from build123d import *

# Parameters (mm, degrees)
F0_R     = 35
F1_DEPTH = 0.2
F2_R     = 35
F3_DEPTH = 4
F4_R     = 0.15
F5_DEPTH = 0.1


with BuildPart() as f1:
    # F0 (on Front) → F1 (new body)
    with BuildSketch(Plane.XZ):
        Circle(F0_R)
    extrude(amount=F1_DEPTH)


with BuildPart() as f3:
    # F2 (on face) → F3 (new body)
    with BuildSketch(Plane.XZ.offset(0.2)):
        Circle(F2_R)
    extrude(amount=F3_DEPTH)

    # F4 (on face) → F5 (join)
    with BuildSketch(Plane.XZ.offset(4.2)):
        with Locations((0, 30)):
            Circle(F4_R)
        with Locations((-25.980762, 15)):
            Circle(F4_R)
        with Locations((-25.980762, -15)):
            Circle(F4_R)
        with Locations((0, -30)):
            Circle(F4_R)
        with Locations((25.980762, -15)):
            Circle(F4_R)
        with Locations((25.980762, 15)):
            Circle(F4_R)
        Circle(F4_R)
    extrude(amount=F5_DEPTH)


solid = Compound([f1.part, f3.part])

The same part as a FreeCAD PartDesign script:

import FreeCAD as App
import Part
import Sketcher
from FreeCAD import Vector
Q = App.Units.Quantity

doc = App.newDocument("Part")
params = doc.addObject("Spreadsheet::Sheet", "Params")
for row, (alias, value) in enumerate([
    ("sketch1_diameter", "70 mm"),
    ("pad1_length", "0.2 mm"),
    ("sketch2_diameter", "70 mm"),
    ("pad2_length", "4 mm"),
    ("sketch3_diameter", "0.3 mm"),
    ("pad3_length", "0.1 mm"),
], start=1):
    params.set(f"A{row}", alias)
    params.set(f"B{row}", "=" + value)
    params.setAlias(f"B{row}", alias)

body = doc.addObject("PartDesign::Body", "Body")

sketch1 = doc.addObject("Sketcher::SketchObject", "Sketch")
body.addObject(sketch1)
sketch1.AttachmentSupport = (doc.XZ_Plane, [""])
sketch1.MapMode = "FlatFace"
sketch1.addGeometry(Part.Circle(Vector(0, 0, 0), Vector(0, 0, 1), 35), False)
sketch1.addConstraint(Sketcher.Constraint("Coincident", 0, 3, -1, 1))
sketch1.addConstraint(Sketcher.Constraint("Diameter", 0, Q("70 mm")))
sketch1.setExpression("Constraints[1]", "Params.sketch1_diameter")
pad1 = doc.addObject("PartDesign::Pad", "Pad")
body.addObject(pad1)
pad1.Profile = sketch1
pad1.setExpression("Length", "Params.pad1_length")
body2 = doc.addObject("PartDesign::Body", "Body001")

sketch2 = doc.addObject("Sketcher::SketchObject", "Sketch001")
body2.addObject(sketch2)
sketch2.AttachmentSupport = (doc.getObject("XZ_Plane001"), [""])
sketch2.MapMode = "FlatFace"
sketch2.AttachmentOffset = App.Placement(Vector(0, 0, 0.2), App.Rotation())
sketch2.addGeometry(Part.Circle(Vector(0, 0, 0), Vector(0, 0, 1), 35), False)
sketch2.addConstraint(Sketcher.Constraint("Coincident", 0, 3, -1, 1))
sketch2.addConstraint(Sketcher.Constraint("Diameter", 0, Q("70 mm")))
sketch2.setExpression("Constraints[1]", "Params.sketch2_diameter")
pad2 = doc.addObject("PartDesign::Pad", "Pad001")
body2.addObject(pad2)
pad2.Profile = sketch2
pad2.setExpression("Length", "Params.pad2_length")

sketch3 = doc.addObject("Sketcher::SketchObject", "Sketch002")
body2.addObject(sketch3)
sketch3.AttachmentSupport = (doc.getObject("XZ_Plane001"), [""])
sketch3.MapMode = "FlatFace"
sketch3.AttachmentOffset = App.Placement(Vector(0, 0, 4.2), App.Rotation())
sketch3.addGeometry(Part.Circle(Vector(0, 30, 0), Vector(0, 0, 1), 0.15), False)
sketch3.addGeometry(Part.Circle(Vector(-25.98, 15, 0), Vector(0, 0, 1), 0.15), False)
sketch3.addGeometry(Part.Circle(Vector(-25.98, -15, 0), Vector(0, 0, 1), 0.15), False)
sketch3.addGeometry(Part.Circle(Vector(0, -30, 0), Vector(0, 0, 1), 0.15), False)
sketch3.addGeometry(Part.Circle(Vector(25.98, -15, 0), Vector(0, 0, 1), 0.15), False)
sketch3.addGeometry(Part.Circle(Vector(25.98, 15, 0), Vector(0, 0, 1), 0.15), False)
sketch3.addGeometry(Part.Circle(Vector(0, 0, 0), Vector(0, 0, 1), 0.15), False)
sketch3.addConstraint(Sketcher.Constraint("Coincident", 6, 3, -1, 1))
sketch3.addConstraint(Sketcher.Constraint("Equal", 0, 1))
sketch3.addConstraint(Sketcher.Constraint("Equal", 1, 2))
sketch3.addConstraint(Sketcher.Constraint("Equal", 2, 3))
sketch3.addConstraint(Sketcher.Constraint("Equal", 3, 4))
sketch3.addConstraint(Sketcher.Constraint("Equal", 4, 5))
sketch3.addConstraint(Sketcher.Constraint("Equal", 5, 6))
sketch3.addConstraint(Sketcher.Constraint("Symmetric", 0, 3, 3, 3, -1, 1))
sketch3.addConstraint(Sketcher.Constraint("Symmetric", 1, 3, 4, 3, -1, 1))
sketch3.addConstraint(Sketcher.Constraint("Symmetric", 2, 3, 5, 3, -1, 1))
sketch3.addConstraint(Sketcher.Constraint("Symmetric", 2, 3, 4, 3, -2))
sketch3.addConstraint(Sketcher.Constraint("PointOnObject", 0, 3, -2))
sketch3.addConstraint(Sketcher.Constraint("Diameter", 0, Q("0.3 mm")))
sketch3.addConstraint(Sketcher.Constraint("DistanceY", -1, 1, 0, 3, Q("30 mm")))
sketch3.addConstraint(Sketcher.Constraint("DistanceY", -1, 1, 1, 3, Q("15 mm")))
sketch3.addConstraint(Sketcher.Constraint("DistanceX", 1, 3, -1, 1, Q("25.980762 mm")))
sketch3.setExpression("Constraints[12]", "Params.sketch3_diameter")
pad3 = doc.addObject("PartDesign::Pad", "Pad002")
body2.addObject(pad3)
pad3.Profile = sketch3
pad3.setExpression("Length", "Params.pad3_length")

doc.recompute()
